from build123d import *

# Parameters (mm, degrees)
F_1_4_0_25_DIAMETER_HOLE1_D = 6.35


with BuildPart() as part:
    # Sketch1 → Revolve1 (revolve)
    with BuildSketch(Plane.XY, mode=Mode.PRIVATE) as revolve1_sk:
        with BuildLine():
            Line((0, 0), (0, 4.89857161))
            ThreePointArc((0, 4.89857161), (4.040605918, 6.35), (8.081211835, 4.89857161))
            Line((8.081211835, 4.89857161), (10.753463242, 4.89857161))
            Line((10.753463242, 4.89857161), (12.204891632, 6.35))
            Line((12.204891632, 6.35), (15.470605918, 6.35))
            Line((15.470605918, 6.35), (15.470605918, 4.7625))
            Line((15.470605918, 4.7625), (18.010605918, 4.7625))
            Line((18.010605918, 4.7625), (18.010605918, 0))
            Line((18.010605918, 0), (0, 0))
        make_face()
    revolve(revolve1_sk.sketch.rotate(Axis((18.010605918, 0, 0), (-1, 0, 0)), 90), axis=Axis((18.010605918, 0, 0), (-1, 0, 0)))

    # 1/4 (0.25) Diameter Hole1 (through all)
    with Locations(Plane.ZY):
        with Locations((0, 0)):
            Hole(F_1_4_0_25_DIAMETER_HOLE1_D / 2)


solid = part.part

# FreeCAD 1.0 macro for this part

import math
import FreeCAD as App
import Part
import Sketcher
Q = App.Units.Quantity

doc = App.newDocument("Part")
body = doc.addObject("PartDesign::Body", "Body")

sketch1 = body.newObject("Sketcher::SketchObject", "Sketch")
sketch1.AttachmentSupport = (doc.getObject("XY_Plane"), [""])
sketch1.MapMode = "FlatFace"
sketch1.addGeometry(Part.LineSegment(App.Vector(0, 4.898572, 0), App.Vector(0, 0, 0)), False)
sketch1.addGeometry(Part.LineSegment(App.Vector(0, 0, 0), App.Vector(18.010606, 0, 0)), False)
sketch1.addGeometry(Part.LineSegment(App.Vector(18.010606, 0, 0), App.Vector(18.010606, 4.7625, 0)), False)
sketch1.addGeometry(Part.LineSegment(App.Vector(18.010606, 4.7625, 0), App.Vector(15.470606, 4.7625, 0)), False)
sketch1.addGeometry(Part.LineSegment(App.Vector(15.470606, 4.7625, 0), App.Vector(15.470606, 6.35, 0)), False)
sketch1.addGeometry(Part.LineSegment(App.Vector(15.470606, 6.35, 0), App.Vector(12.204892, 6.35, 0)), False)
sketch1.addGeometry(Part.LineSegment(App.Vector(12.204892, 6.35, 0), App.Vector(10.753463, 4.898572, 0)), False)
sketch1.addGeometry(Part.LineSegment(App.Vector(10.753463, 4.898572, 0), App.Vector(8.081212, 4.898572, 0)), False)
sketch1.addGeometry(Part.ArcOfCircle(Part.Circle(App.Vector(4.040606, 0, 0), App.Vector(0, 0, 1), 6.35), math.radians(50.48235), math.radians(129.51765)), False)
sketch1.addConstraint(Sketcher.Constraint("Coincident", 0, 2, 1, 1))
sketch1.addConstraint(Sketcher.Constraint("Coincident", 1, 2, 2, 1))
sketch1.addConstraint(Sketcher.Constraint("Coincident", 2, 2, 3, 1))
sketch1.addConstraint(Sketcher.Constraint("Coincident", 3, 2, 4, 1))
sketch1.addConstraint(Sketcher.Constraint("Coincident", 4, 2, 5, 1))
sketch1.addConstraint(Sketcher.Constraint("Coincident", 5, 2, 6, 1))
sketch1.addConstraint(Sketcher.Constraint("Coincident", 6, 2, 7, 1))
sketch1.addConstraint(Sketcher.Constraint("Coincident", 7, 2, 8, 1))
sketch1.addConstraint(Sketcher.Constraint("Coincident", 8, 2, 0, 1))
sketch1.addConstraint(Sketcher.Constraint("Vertical", 0))
sketch1.addConstraint(Sketcher.Constraint("Horizontal", 1))
sketch1.addConstraint(Sketcher.Constraint("Vertical", 2))
sketch1.addConstraint(Sketcher.Constraint("Horizontal", 3))
sketch1.addConstraint(Sketcher.Constraint("Vertical", 4))
sketch1.addConstraint(Sketcher.Constraint("Horizontal", 5))
sketch1.addConstraint(Sketcher.Constraint("Horizontal", 7))
sketch1.addConstraint(Sketcher.Constraint("Coincident", 0, 2, -1, 1))
sketch1.addConstraint(Sketcher.Constraint("PointOnObject", 8, 3, -1))
sketch1.addConstraint(Sketcher.Constraint("Horizontal", 7, 2, 8, 2))
sketch1.addConstraint(Sketcher.Constraint("Radius", 8, Q("0.25 in")))
sketch1.addConstraint(Sketcher.Constraint("DistanceX", 3, 2, 3, 1, Q("0.1 in")))
sketch1.addConstraint(Sketcher.Constraint("Angle", 6, Q("-135 deg")))
sketch1.addConstraint(Sketcher.Constraint("DistanceY", 2, 1, 2, 2, Q("0.1875 in")))
sketch1.addConstraint(Sketcher.Constraint("DistanceY", 4, 1, 4, 2, Q("0.0625 in")))
sketch1.addConstraint(Sketcher.Constraint("DistanceX", 8, 3, 1, 2, Q("0.55 in")))
sketch1.addConstraint(Sketcher.Constraint("DistanceX", 7, 2, 7, 1, 2.672251))
sketch1.addConstraint(Sketcher.Constraint("DistanceY", 0, 2, 0, 1, 4.898572))
revolution = body.newObject("PartDesign::Revolution", "Revolution")
revolution.Profile = sketch1
revolution.ReferenceAxis = (sketch1, ["H_Axis"])
revolution.Angle = 360

sketch2 = body.newObject("Sketcher::SketchObject", "Sketch001")
sketch2.AttachmentSupport = (doc.getObject("YZ_Plane"), [""])
sketch2.MapMode = "FlatFace"
sketch2.addGeometry(Part.Circle(App.Vector(0, 0, 0), App.Vector(0, 0, 1), 3.175), False)
sketch2.addConstraint(Sketcher.Constraint("Coincident", 0, 3, -1, 1))
sketch2.addConstraint(Sketcher.Constraint("Diameter", 0, Q("0.25 in")))
doc.recompute()
hole = body.newObject("PartDesign::Hole", "Hole")
hole.Profile = sketch2
hole.ThreadType = "None"
hole.Diameter = Q("0.25 in")
hole.DepthType = "ThroughAll"
hole.Reversed = True

doc.recompute()
